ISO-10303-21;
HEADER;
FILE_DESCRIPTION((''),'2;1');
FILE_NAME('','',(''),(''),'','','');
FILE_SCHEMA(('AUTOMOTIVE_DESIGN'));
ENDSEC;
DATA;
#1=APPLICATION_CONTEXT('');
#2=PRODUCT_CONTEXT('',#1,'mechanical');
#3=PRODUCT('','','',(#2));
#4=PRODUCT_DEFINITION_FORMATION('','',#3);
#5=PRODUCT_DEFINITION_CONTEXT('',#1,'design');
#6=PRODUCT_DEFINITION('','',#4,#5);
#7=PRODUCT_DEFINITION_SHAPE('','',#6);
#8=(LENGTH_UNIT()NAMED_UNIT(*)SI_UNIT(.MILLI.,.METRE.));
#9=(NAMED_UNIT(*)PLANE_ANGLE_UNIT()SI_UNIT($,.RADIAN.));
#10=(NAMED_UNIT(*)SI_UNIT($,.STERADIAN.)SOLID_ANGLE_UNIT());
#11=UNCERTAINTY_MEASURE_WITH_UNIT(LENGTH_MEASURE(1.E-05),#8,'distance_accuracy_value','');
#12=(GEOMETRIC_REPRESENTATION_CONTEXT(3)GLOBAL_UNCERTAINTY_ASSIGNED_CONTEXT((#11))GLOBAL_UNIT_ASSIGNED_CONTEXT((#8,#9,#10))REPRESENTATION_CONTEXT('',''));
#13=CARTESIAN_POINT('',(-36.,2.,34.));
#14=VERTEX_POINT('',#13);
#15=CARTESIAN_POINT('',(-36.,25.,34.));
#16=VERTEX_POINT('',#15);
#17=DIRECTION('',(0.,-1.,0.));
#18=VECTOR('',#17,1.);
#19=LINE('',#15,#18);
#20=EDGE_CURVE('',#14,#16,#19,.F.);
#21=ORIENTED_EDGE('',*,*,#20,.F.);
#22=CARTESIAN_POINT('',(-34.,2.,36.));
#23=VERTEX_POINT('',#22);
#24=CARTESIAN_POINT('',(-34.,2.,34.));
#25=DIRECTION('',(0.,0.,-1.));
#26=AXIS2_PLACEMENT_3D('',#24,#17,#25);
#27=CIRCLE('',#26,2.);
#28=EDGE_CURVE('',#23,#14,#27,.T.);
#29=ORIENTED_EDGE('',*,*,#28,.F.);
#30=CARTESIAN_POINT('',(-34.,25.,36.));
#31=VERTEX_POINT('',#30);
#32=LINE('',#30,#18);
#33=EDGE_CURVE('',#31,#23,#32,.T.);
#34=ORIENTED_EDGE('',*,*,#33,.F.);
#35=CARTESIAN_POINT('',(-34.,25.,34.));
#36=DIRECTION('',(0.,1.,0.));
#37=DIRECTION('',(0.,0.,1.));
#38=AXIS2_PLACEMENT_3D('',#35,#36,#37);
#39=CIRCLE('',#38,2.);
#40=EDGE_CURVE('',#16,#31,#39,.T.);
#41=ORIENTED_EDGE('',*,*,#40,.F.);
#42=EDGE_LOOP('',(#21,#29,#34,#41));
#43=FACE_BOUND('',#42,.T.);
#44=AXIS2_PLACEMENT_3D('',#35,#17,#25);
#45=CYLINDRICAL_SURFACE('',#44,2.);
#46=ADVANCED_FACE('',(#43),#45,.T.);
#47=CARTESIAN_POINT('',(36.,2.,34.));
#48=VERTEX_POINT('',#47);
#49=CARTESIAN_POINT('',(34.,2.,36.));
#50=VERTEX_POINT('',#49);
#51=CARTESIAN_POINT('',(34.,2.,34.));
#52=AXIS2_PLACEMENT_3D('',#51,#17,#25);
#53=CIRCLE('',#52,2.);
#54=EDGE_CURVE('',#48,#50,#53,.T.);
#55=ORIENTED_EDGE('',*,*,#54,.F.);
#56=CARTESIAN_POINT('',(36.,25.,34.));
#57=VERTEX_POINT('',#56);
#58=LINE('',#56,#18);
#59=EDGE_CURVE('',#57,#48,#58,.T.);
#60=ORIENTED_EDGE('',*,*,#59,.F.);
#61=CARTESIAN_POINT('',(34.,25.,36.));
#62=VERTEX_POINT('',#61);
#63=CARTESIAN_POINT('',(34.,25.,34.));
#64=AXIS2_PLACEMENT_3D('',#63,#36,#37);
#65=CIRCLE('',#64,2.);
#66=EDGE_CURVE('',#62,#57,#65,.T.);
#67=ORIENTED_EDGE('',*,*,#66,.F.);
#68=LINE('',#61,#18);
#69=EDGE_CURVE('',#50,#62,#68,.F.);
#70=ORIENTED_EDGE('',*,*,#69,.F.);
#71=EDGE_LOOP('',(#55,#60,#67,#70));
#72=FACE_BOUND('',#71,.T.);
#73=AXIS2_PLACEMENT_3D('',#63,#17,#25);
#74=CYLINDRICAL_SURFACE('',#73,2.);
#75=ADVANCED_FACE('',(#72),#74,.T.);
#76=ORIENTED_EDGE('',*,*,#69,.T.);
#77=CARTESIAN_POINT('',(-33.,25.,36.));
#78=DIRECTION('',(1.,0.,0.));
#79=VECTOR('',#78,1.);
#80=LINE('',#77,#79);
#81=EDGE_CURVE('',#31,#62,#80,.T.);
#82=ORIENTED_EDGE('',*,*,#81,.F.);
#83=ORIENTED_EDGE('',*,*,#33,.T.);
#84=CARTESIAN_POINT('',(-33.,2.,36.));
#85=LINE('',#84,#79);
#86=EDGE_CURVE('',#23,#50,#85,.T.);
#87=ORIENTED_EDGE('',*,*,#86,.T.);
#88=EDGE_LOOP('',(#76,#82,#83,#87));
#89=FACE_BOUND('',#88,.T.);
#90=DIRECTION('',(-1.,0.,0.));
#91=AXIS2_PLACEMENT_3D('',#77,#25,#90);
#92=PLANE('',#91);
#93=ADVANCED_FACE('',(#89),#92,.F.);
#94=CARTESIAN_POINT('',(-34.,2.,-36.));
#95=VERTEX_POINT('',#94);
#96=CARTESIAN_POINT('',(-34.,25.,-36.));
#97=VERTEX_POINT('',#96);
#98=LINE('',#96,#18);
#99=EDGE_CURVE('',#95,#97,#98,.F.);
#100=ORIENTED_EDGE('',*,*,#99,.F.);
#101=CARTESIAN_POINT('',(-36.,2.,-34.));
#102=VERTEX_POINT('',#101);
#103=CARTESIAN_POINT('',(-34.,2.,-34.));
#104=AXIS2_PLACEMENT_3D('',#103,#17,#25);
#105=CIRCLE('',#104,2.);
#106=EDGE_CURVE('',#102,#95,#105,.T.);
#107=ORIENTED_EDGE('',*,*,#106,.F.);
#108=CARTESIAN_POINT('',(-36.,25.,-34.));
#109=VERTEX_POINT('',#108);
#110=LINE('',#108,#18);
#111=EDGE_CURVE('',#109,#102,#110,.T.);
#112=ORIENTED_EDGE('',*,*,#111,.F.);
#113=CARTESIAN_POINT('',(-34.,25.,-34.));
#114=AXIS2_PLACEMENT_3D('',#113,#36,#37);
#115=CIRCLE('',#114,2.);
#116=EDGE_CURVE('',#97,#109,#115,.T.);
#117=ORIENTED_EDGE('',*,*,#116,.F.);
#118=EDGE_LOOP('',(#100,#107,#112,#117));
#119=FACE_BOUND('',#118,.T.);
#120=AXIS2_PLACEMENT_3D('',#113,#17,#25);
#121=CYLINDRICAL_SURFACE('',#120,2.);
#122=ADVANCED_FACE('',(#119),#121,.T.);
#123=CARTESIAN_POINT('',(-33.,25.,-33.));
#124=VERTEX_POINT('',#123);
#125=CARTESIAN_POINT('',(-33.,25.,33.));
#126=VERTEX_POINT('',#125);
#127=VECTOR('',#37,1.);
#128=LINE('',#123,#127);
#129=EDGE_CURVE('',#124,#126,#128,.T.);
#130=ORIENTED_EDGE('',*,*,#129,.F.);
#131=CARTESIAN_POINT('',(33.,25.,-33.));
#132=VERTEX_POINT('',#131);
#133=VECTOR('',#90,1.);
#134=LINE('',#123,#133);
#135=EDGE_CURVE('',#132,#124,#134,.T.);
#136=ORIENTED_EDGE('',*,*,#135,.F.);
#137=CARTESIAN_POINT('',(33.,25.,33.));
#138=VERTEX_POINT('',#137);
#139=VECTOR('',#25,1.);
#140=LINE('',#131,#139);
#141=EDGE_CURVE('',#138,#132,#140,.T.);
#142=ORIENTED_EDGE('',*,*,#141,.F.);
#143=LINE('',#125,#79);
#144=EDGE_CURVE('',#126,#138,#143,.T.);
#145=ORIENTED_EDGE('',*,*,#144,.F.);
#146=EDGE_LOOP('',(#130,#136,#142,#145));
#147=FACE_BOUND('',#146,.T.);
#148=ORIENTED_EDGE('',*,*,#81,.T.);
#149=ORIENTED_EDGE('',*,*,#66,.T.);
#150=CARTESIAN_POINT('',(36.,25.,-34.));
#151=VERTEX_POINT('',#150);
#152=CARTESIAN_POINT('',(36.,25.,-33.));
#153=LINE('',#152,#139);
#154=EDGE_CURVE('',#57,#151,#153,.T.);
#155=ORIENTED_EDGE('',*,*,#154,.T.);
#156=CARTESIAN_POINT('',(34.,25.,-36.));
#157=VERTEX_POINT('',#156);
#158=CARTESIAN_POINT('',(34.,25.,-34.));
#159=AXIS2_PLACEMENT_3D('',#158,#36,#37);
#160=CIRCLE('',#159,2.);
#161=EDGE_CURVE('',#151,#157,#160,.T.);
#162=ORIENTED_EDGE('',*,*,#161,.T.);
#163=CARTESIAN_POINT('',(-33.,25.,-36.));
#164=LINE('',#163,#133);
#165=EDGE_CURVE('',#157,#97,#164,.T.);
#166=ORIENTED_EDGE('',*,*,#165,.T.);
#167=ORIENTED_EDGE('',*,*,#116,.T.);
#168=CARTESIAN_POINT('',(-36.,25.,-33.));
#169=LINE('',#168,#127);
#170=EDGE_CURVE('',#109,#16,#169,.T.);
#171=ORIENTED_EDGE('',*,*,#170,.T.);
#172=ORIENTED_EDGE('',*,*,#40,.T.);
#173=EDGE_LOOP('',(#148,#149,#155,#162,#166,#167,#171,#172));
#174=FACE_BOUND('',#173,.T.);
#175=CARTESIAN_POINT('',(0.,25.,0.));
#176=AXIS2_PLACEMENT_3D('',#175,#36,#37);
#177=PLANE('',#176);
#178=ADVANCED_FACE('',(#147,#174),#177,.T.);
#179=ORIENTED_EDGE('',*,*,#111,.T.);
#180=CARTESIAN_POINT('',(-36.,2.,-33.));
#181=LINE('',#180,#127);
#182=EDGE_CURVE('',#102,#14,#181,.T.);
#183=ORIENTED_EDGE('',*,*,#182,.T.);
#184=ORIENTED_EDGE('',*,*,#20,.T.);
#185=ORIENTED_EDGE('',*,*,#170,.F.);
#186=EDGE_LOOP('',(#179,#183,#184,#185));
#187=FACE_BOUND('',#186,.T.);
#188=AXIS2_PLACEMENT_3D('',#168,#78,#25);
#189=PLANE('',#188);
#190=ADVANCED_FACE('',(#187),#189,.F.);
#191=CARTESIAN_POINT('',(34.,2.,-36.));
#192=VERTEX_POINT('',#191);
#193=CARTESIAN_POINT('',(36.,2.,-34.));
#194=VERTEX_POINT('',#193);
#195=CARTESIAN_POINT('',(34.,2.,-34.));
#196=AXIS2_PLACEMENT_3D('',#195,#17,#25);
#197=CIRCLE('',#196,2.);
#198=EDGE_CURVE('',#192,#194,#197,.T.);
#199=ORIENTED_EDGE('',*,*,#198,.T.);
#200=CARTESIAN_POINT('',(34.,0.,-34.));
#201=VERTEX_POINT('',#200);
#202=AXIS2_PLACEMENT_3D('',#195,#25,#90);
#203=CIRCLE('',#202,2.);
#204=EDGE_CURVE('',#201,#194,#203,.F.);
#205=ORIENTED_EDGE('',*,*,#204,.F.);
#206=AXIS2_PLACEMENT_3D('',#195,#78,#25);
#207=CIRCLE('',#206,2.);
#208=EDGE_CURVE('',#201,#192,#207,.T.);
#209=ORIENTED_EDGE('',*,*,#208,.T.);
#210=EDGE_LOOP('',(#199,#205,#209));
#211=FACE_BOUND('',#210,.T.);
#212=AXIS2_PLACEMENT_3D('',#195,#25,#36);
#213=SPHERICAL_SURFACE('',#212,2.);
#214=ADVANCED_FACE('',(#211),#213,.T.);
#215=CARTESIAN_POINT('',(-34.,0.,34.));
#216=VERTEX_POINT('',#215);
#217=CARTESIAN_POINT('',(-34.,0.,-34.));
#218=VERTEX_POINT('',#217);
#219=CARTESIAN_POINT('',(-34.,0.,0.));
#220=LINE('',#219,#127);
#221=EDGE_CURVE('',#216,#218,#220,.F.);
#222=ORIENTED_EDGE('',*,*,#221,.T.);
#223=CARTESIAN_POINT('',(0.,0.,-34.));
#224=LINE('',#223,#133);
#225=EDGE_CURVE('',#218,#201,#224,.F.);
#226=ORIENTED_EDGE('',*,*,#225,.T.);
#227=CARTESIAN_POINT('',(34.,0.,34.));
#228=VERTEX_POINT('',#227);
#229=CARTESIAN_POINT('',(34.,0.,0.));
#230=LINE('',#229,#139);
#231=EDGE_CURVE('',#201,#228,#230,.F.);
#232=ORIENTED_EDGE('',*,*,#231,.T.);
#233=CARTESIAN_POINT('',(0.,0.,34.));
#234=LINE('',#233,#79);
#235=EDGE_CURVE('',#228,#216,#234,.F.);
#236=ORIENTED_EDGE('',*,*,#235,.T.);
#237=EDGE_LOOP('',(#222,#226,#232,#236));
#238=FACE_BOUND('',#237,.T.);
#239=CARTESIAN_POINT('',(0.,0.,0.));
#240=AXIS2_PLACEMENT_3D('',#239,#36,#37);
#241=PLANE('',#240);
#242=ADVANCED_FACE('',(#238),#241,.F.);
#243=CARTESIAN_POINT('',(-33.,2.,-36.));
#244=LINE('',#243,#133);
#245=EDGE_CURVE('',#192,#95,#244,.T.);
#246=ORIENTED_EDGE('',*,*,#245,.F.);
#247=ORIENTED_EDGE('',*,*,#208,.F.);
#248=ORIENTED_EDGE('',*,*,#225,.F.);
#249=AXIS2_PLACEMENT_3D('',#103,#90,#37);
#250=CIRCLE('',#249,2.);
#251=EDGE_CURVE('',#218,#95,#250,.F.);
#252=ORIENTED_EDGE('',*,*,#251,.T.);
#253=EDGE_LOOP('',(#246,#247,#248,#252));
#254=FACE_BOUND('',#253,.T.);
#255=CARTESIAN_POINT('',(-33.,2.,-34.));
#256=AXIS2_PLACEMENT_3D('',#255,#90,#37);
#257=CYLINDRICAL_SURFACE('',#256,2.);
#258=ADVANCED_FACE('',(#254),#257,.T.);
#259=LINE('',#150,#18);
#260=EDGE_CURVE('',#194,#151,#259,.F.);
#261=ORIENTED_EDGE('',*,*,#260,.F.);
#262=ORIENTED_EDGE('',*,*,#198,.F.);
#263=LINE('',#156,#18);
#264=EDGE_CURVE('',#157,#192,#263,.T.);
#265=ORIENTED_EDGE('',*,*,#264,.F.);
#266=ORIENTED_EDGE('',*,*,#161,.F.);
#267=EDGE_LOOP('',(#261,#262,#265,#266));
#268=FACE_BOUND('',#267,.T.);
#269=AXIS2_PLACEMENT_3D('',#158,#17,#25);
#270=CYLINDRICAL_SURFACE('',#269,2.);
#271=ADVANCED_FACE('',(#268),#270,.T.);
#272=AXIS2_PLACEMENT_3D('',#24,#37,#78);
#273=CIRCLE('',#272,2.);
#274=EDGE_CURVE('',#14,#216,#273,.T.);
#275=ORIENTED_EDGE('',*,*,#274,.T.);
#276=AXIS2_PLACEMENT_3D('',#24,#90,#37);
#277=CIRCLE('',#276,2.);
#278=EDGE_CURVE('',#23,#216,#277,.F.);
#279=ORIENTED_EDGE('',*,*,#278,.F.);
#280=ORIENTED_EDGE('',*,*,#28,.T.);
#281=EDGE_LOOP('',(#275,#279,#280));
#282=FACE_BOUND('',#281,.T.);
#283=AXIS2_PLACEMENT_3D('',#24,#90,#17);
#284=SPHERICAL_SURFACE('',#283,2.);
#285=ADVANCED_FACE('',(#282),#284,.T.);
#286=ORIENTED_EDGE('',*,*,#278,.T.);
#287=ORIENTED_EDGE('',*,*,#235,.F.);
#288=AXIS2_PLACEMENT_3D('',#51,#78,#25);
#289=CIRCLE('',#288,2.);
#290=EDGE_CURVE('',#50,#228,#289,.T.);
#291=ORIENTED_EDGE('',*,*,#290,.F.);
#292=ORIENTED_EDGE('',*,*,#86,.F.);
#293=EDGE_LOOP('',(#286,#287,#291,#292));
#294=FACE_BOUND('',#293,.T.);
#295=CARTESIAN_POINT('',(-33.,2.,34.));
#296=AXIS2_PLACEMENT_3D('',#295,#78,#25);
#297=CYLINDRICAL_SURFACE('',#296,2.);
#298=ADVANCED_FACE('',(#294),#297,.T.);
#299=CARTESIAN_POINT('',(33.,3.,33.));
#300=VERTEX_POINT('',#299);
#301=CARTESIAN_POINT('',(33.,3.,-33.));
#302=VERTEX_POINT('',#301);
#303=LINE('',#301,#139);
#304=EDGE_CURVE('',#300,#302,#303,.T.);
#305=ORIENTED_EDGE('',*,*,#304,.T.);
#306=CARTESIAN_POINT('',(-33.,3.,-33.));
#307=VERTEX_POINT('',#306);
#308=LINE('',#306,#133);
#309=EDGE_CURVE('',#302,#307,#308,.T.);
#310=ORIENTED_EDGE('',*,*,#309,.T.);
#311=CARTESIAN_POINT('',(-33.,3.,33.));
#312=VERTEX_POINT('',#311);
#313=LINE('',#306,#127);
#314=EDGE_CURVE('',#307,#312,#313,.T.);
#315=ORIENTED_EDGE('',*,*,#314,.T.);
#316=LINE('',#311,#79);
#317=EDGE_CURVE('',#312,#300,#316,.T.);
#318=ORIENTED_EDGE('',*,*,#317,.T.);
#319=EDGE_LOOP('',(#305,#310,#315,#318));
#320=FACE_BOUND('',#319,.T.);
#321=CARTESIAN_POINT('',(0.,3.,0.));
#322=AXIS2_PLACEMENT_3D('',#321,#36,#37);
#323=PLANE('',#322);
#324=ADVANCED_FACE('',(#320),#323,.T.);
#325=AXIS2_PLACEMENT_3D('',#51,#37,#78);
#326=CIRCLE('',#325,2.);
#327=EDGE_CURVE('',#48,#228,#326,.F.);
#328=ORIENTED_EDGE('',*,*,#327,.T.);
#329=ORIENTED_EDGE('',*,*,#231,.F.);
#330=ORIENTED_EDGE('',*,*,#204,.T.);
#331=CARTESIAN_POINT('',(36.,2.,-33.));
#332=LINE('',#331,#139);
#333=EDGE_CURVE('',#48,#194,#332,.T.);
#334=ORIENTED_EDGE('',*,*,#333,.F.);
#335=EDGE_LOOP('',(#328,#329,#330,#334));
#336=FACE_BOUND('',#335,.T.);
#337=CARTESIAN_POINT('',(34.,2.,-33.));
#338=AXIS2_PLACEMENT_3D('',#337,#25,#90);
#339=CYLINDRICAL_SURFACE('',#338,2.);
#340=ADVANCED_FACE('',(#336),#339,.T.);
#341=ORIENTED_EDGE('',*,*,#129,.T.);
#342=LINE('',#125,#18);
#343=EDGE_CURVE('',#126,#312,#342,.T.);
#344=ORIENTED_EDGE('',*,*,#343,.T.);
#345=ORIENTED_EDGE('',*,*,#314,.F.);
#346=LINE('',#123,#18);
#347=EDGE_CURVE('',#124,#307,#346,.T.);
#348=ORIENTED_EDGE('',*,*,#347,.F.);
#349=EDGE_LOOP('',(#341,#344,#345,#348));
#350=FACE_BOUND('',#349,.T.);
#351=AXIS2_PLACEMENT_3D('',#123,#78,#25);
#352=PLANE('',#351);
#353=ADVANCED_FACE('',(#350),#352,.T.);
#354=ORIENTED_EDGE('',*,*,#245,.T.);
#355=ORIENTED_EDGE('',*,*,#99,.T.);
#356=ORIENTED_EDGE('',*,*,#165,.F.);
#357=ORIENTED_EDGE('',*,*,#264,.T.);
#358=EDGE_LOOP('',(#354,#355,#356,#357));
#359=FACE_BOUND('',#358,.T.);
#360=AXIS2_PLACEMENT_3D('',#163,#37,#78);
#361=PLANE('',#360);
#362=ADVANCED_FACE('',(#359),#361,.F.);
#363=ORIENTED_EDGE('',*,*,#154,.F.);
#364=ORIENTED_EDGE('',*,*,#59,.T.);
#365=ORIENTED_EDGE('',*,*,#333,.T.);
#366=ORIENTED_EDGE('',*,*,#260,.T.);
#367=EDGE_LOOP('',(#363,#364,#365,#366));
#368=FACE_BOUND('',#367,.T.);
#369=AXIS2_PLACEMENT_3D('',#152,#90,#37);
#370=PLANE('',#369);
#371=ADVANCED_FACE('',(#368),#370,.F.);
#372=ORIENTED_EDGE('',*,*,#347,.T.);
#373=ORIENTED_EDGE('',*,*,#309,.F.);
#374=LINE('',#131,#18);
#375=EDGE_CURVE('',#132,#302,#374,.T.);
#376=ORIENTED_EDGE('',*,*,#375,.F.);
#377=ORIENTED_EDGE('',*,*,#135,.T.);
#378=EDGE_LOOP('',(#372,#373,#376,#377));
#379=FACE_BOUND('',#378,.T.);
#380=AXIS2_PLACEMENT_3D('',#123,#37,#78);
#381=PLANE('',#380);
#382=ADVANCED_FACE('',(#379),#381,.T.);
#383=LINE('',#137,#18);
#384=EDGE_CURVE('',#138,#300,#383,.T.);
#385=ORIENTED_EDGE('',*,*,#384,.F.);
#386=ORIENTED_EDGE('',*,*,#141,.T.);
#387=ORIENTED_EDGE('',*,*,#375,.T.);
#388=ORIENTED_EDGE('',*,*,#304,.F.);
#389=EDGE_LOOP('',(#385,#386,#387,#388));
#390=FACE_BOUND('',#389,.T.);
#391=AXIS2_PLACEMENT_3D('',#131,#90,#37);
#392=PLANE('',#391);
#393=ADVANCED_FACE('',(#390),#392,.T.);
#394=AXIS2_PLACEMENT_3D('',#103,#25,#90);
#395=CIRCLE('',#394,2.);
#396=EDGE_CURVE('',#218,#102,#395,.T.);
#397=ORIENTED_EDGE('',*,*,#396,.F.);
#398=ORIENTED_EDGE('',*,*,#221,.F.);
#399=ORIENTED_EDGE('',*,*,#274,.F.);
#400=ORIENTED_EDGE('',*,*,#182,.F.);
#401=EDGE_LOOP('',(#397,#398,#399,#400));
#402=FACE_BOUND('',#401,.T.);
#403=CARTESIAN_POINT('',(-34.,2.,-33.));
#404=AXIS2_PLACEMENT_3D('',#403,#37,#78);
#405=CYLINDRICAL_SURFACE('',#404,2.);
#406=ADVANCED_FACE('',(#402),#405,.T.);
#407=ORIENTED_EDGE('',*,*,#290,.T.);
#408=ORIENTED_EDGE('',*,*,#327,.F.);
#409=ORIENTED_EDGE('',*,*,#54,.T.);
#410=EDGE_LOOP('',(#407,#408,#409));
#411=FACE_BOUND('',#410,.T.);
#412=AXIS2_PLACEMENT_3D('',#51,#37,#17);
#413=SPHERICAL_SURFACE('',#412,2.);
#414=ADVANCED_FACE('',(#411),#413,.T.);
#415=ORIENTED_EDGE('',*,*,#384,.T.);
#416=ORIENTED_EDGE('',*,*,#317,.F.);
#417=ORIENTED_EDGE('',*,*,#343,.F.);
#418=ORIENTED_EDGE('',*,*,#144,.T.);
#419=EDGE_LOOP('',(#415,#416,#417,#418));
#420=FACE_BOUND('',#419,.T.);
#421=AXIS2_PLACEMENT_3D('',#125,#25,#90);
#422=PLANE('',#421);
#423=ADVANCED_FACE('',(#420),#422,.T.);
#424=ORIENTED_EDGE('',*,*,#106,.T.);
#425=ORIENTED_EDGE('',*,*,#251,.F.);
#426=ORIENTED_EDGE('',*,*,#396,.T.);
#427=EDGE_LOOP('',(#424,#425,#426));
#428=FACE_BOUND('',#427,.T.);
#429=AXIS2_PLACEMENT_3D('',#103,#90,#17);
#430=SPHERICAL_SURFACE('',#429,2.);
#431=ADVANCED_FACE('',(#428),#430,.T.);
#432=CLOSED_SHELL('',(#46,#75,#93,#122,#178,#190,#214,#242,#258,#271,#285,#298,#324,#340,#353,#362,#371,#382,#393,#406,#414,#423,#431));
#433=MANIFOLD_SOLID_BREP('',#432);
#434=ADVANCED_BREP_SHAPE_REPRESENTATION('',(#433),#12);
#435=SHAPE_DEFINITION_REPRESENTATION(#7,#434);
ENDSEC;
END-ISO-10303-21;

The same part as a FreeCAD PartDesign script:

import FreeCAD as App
import Part
import Sketcher
from FreeCAD import Vector


def edges_at(feature, points):
    """Names of the edges that pass closest to the given points."""
    edges = feature.Shape.Edges
    near = lambda p: min(range(len(edges)), key=lambda i: edges[i].distToShape(Part.Vertex(*p))[0])
    return sorted({f"Edge{near(p) + 1}" for p in points})


def add_polygon(sketch, points):
    """Adds a closed chain of lines whose ends are joined by coincident constraints."""
    first, n = sketch.GeometryCount, len(points)
    for a, b in zip(points, points[1:] + points[:1]):
        sketch.addGeometry(Part.LineSegment(App.Vector(*a, 0), App.Vector(*b, 0)), False)
    for i in range(n):
        sketch.addConstraint(Sketcher.Constraint("Coincident", first + i, 2, first + (i + 1) % n, 1))

doc = App.newDocument("Part")
body = doc.addObject("PartDesign::Body", "Body")

# Sketch on XZ plane
sketch1 = doc.addObject("Sketcher::SketchObject", "Sketch")
body.addObject(sketch1)
sketch1.AttachmentSupport = (doc.XZ_Plane, [""])
sketch1.MapMode = "FlatFace"
add_polygon(sketch1, [(-33, -33), (-33, 33), (33, 33), (33, -33)])  # lines 0-3
sketch1.addConstraint([
    Sketcher.Constraint("Vertical", 0),
    Sketcher.Constraint("Horizontal", 1),
    Sketcher.Constraint("Vertical", 2),
    Sketcher.Constraint("Horizontal", 3),
    Sketcher.Constraint("Symmetric", 0, 2, 2, 2, -1, 1),
    Sketcher.Constraint("Equal", 3, 0),
    Sketcher.Constraint("DistanceX", 1, 1, 1, 2, 66.0),
])
pad1 = doc.addObject("PartDesign::Pad", "Pad")
body.addObject(pad1)
pad1.Profile = sketch1
pad1.Length = 3
pad1.Reversed = True

# Sketch on XZ plane
sketch2 = doc.addObject("Sketcher::SketchObject", "Sketch001")
body.addObject(sketch2)
sketch2.AttachmentSupport = (doc.XZ_Plane, [""])
sketch2.MapMode = "FlatFace"
add_polygon(sketch2, [(-36, -36), (-36, 36), (36, 36), (36, -36)])  # lines 0-3
add_polygon(sketch2, [(33, 33), (-33, 33), (-33, -33), (33, -33)])  # lines 4-7
sketch2.addConstraint([
    Sketcher.Constraint("Vertical", 0),
    Sketcher.Constraint("Horizontal", 1),
    Sketcher.Constraint("Vertical", 2),
    Sketcher.Constraint("Horizontal", 3),
    Sketcher.Constraint("Horizontal", 4),
    Sketcher.Constraint("Vertical", 5),
    Sketcher.Constraint("Horizontal", 6),
    Sketcher.Constraint("Vertical", 7),
    Sketcher.Constraint("Symmetric", 0, 2, 2, 2, -1, 1),
    Sketcher.Constraint("Symmetric", 4, 2, 6, 2, -1, 1),
    Sketcher.Constraint("Equal", 3, 0),
    Sketcher.Constraint("Equal", 6, 5),
    Sketcher.Constraint("DistanceX", 1, 1, 1, 2, 72.0),
    Sketcher.Constraint("DistanceX", 4, 2, 4, 1, 66.0),
])
pad2 = doc.addObject("PartDesign::Pad", "Pad001")
body.addObject(pad2)
pad2.Profile = sketch2
pad2.Length = 25
pad2.Reversed = True
doc.recompute()

fillet = doc.addObject("PartDesign::Fillet", "Fillet")
body.addObject(fillet)
fillet.Base = (pad2, edges_at(pad2, [
    (36, 0, 0),
    (36, 12.5, 36),
    (0, 0, -36),
    (36, 12.5, -36),
    (-36, 0, 0),
    (-36, 12.5, -36),
    (0, 0, 36),
    (-36, 12.5, 36),
]))
fillet.Radius = 2

doc.recompute()
